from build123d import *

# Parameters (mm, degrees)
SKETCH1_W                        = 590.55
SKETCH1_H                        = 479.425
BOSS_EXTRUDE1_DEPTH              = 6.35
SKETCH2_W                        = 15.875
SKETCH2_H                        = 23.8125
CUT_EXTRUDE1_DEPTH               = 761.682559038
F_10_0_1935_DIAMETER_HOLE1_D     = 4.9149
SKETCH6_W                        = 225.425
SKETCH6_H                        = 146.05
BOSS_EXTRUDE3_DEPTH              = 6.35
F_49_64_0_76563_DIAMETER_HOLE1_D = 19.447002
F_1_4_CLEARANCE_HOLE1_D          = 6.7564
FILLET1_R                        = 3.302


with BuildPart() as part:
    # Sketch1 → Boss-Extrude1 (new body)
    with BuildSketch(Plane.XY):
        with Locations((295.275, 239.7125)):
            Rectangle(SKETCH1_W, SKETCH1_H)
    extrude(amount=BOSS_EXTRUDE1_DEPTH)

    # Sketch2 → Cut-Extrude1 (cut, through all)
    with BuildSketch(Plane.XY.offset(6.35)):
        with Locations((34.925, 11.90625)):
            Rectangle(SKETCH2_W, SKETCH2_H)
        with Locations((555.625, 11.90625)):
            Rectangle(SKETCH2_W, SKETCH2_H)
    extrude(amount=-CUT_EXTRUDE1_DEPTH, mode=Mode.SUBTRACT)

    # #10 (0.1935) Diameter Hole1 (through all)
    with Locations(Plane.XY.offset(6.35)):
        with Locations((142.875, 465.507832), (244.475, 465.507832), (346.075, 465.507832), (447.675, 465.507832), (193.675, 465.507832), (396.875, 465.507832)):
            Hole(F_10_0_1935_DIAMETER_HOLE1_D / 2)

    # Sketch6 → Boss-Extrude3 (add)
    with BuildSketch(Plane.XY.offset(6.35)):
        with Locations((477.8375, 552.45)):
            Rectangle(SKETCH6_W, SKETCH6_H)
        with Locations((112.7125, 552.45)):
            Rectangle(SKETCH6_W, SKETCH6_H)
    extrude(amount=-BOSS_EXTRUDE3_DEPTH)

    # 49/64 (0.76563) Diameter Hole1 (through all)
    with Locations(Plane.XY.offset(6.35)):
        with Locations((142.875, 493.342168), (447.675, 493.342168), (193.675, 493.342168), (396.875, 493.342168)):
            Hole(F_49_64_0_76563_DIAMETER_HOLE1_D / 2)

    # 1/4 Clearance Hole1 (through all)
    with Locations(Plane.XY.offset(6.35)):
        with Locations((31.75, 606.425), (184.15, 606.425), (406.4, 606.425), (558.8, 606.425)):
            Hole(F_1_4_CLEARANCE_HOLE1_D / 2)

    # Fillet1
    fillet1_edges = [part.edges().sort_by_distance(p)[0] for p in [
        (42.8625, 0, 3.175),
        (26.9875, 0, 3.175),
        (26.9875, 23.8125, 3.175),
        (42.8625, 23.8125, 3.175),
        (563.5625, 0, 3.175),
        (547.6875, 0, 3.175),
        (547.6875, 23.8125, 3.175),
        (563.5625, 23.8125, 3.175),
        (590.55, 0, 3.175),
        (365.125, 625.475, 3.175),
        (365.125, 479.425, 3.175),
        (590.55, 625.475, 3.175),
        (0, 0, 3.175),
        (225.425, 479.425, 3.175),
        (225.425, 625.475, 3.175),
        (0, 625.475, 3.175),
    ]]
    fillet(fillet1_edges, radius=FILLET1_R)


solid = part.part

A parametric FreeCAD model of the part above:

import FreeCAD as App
import Part
import Sketcher
Q = App.Units.Quantity


def edges_at(feature, points):
    """Names of the edges that pass closest to the given points."""
    edges = feature.Shape.Edges
    near = lambda p: min(range(len(edges)), key=lambda i: edges[i].distToShape(Part.Vertex(*p))[0])
    return sorted({f"Edge{near(p) + 1}" for p in points})


def add_polygon(sketch, points):
    """Adds a closed chain of lines whose ends are joined by coincident constraints."""
    first, n = sketch.GeometryCount, len(points)
    for a, b in zip(points, points[1:] + points[:1]):
        sketch.addGeometry(Part.LineSegment(App.Vector(*a, 0), App.Vector(*b, 0)), False)
    for i in range(n):
        sketch.addConstraint(Sketcher.Constraint("Coincident", first + i, 2, first + (i + 1) % n, 1))

doc = App.newDocument("Part")
body = doc.addObject("PartDesign::Body", "Body")

# Sketch on XY plane
sketch1 = body.newObject("Sketcher::SketchObject", "Sketch")
sketch1.AttachmentSupport = (doc.getObject("XY_Plane"), [""])
sketch1.MapMode = "FlatFace"
add_polygon(sketch1, [(0, 479.425), (0, 0), (590.55, 0), (590.55, 479.425)])  # lines 0-3
sketch1.addConstraint(Sketcher.Constraint("Vertical", 0))
sketch1.addConstraint(Sketcher.Constraint("Horizontal", 1))
sketch1.addConstraint(Sketcher.Constraint("Vertical", 2))
sketch1.addConstraint(Sketcher.Constraint("Horizontal", 3))
sketch1.addConstraint(Sketcher.Constraint("Coincident", 0, 2, -1, 1))
sketch1.addConstraint(Sketcher.Constraint("DistanceX", 1, 1, 1, 2, Q("23.25 in")))
sketch1.addConstraint(Sketcher.Constraint("DistanceY", 0, 2, 0, 1, Q("18.875 in")))
pad1 = body.newObject("PartDesign::Pad", "Pad")
pad1.Profile = sketch1
pad1.Length = Q("0.25 in")

# Sketch on XY plane
sketch2 = body.newObject("Sketcher::SketchObject", "Sketch001")
sketch2.AttachmentSupport = (doc.getObject("XY_Plane"), [""])
sketch2.MapMode = "FlatFace"
sketch2.AttachmentOffset = App.Placement(App.Vector(0, 0, 0.25 * 25.4), App.Rotation())
add_polygon(sketch2, [(26.9875, 23.8125), (26.9875, 0), (42.8625, 0), (42.8625, 23.8125)])  # lines 0-3
add_polygon(sketch2, [(547.6875, 23.8125), (547.6875, 0), (563.5625, 0), (563.5625, 23.8125)])  # lines 4-7
sketch2.addConstraint(Sketcher.Constraint("Vertical", 0))
sketch2.addConstraint(Sketcher.Constraint("Horizontal", 1))
sketch2.addConstraint(Sketcher.Constraint("Vertical", 2))
sketch2.addConstraint(Sketcher.Constraint("Horizontal", 3))
sketch2.addConstraint(Sketcher.Constraint("Vertical", 4))
sketch2.addConstraint(Sketcher.Constraint("Horizontal", 5))
sketch2.addConstraint(Sketcher.Constraint("Vertical", 6))
sketch2.addConstraint(Sketcher.Constraint("Horizontal", 7))
sketch2.addConstraint(Sketcher.Constraint("PointOnObject", 0, 2, -1))
sketch2.addConstraint(Sketcher.Constraint("PointOnObject", 4, 2, -1))
sketch2.addConstraint(Sketcher.Constraint("Horizontal", 3, 2, 6, 2))
sketch2.addConstraint(Sketcher.Constraint("Equal", 3, 5))
sketch2.addConstraint(Sketcher.Constraint("DistanceX", 0, 2, 4, 2, Q("20.5 in")))
sketch2.addConstraint(Sketcher.Constraint("DistanceX", 1, 1, 1, 2, Q("0.625 in")))
sketch2.addConstraint(Sketcher.Constraint("DistanceY", 0, 2, 0, 1, Q("0.9375 in")))
sketch2.addConstraint(Sketcher.Constraint("DistanceX", -1, 1, 0, 2, Q("1.0625 in")))
pocket1 = body.newObject("PartDesign::Pocket", "Pocket")
pocket1.Profile = sketch2
pocket1.Type = "ThroughAll"

# Sketch on XY plane
sketch3 = body.newObject("Sketcher::SketchObject", "Sketch002")
sketch3.AttachmentSupport = (doc.getObject("XY_Plane"), [""])
sketch3.MapMode = "FlatFace"
sketch3.AttachmentOffset = App.Placement(App.Vector(0, 0, 0.25 * 25.4), App.Rotation())
sketch3.addGeometry(Part.Circle(App.Vector(142.875, 465.507832, 0), App.Vector(0, 0, 1), 2.45745), False)
sketch3.addGeometry(Part.Circle(App.Vector(244.475, 465.507832, 0), App.Vector(0, 0, 1), 2.45745), False)
sketch3.addGeometry(Part.Circle(App.Vector(346.075, 465.507832, 0), App.Vector(0, 0, 1), 2.45745), False)
sketch3.addGeometry(Part.Circle(App.Vector(447.675, 465.507832, 0), App.Vector(0, 0, 1), 2.45745), False)
sketch3.addGeometry(Part.Circle(App.Vector(193.675, 465.507832, 0), App.Vector(0, 0, 1), 2.45745), False)
sketch3.addGeometry(Part.Circle(App.Vector(396.875, 465.507832, 0), App.Vector(0, 0, 1), 2.45745), False)
sketch3.addConstraint(Sketcher.Constraint("Equal", 0, 1))
sketch3.addConstraint(Sketcher.Constraint("Equal", 1, 2))
sketch3.addConstraint(Sketcher.Constraint("Equal", 2, 3))
sketch3.addConstraint(Sketcher.Constraint("Equal", 3, 4))
sketch3.addConstraint(Sketcher.Constraint("Equal", 4, 5))
sketch3.addConstraint(Sketcher.Constraint("Horizontal", 0, 3, 1, 3))
sketch3.addConstraint(Sketcher.Constraint("Horizontal", 1, 3, 2, 3))
sketch3.addConstraint(Sketcher.Constraint("Horizontal", 2, 3, 3, 3))
sketch3.addConstraint(Sketcher.Constraint("Horizontal", 3, 3, 4, 3))
sketch3.addConstraint(Sketcher.Constraint("Horizontal", 4, 3, 5, 3))
sketch3.addConstraint(Sketcher.Constraint("DistanceX", 0, 3, 1, 3, Q("4 in")))
sketch3.addConstraint(Sketcher.Constraint("DistanceX", 1, 3, 2, 3, Q("4 in")))
sketch3.addConstraint(Sketcher.Constraint("DistanceX", 2, 3, 3, 3, Q("4 in")))
sketch3.addConstraint(Sketcher.Constraint("DistanceX", 4, 3, 1, 3, Q("2 in")))
sketch3.addConstraint(Sketcher.Constraint("DistanceX", 2, 3, 5, 3, Q("2 in")))
sketch3.addConstraint(Sketcher.Constraint("Diameter", 0, Q("0.1935 in")))
sketch3.addConstraint(Sketcher.Constraint("DistanceX", -1, 1, 0, 3, Q("5.625 in")))
sketch3.addConstraint(Sketcher.Constraint("DistanceY", -1, 1, 0, 3, Q("465.507832 mm")))
doc.recompute()
hole = body.newObject("PartDesign::Hole", "Hole")
hole.Profile = sketch3
hole.ThreadType = "None"
hole.Diameter = Q("0.1935 in")
hole.DepthType = "ThroughAll"

# Sketch on XY plane
sketch4 = body.newObject("Sketcher::SketchObject", "Sketch003")
sketch4.AttachmentSupport = (doc.getObject("XY_Plane"), [""])
sketch4.MapMode = "FlatFace"
sketch4.AttachmentOffset = App.Placement(App.Vector(0, 0, 0.25 * 25.4), App.Rotation())
add_polygon(sketch4, [(365.125, 625.475), (365.125, 479.425), (590.55, 479.425), (590.55, 625.475)])  # lines 0-3
add_polygon(sketch4, [(0, 625.475), (0, 479.425), (225.425, 479.425), (225.425, 625.475)])  # lines 4-7
sketch4.addConstraint(Sketcher.Constraint("Vertical", 0))
sketch4.addConstraint(Sketcher.Constraint("Horizontal", 1))
sketch4.addConstraint(Sketcher.Constraint("Vertical", 2))
sketch4.addConstraint(Sketcher.Constraint("Horizontal", 3))
sketch4.addConstraint(Sketcher.Constraint("Vertical", 4))
sketch4.addConstraint(Sketcher.Constraint("Horizontal", 5))
sketch4.addConstraint(Sketcher.Constraint("Vertical", 6))
sketch4.addConstraint(Sketcher.Constraint("Horizontal", 7))
sketch4.addConstraint(Sketcher.Constraint("PointOnObject", 4, 2, -2))
sketch4.addConstraint(Sketcher.Constraint("Horizontal", 1, 2, 4, 2))
sketch4.addConstraint(Sketcher.Constraint("Horizontal", 3, 2, 6, 2))
sketch4.addConstraint(Sketcher.Constraint("Equal", 3, 5))
sketch4.addConstraint(Sketcher.Constraint("DistanceY", 0, 2, 0, 1, Q("5.75 in")))
sketch4.addConstraint(Sketcher.Constraint("DistanceX", 5, 2, 0, 2, Q("5.5 in")))
sketch4.addConstraint(Sketcher.Constraint("DistanceX", 1, 1, 1, 2, Q("8.875 in")))
sketch4.addConstraint(Sketcher.Constraint("DistanceY", -1, 1, 0, 2, Q("18.875 in")))
pad2 = body.newObject("PartDesign::Pad", "Pad001")
pad2.Profile = sketch4
pad2.Length = Q("0.25 in")
pad2.Reversed = True

# Sketch on XY plane
sketch5 = body.newObject("Sketcher::SketchObject", "Sketch004")
sketch5.AttachmentSupport = (doc.getObject("XY_Plane"), [""])
sketch5.MapMode = "FlatFace"
sketch5.AttachmentOffset = App.Placement(App.Vector(0, 0, 0.25 * 25.4), App.Rotation())
sketch5.addGeometry(Part.Circle(App.Vector(142.875, 493.342168, 0), App.Vector(0, 0, 1), 9.723501), False)
sketch5.addGeometry(Part.Circle(App.Vector(447.675, 493.342168, 0), App.Vector(0, 0, 1), 9.723501), False)
sketch5.addGeometry(Part.Circle(App.Vector(193.675, 493.342168, 0), App.Vector(0, 0, 1), 9.723501), False)
sketch5.addGeometry(Part.Circle(App.Vector(396.875, 493.342168, 0), App.Vector(0, 0, 1), 9.723501), False)
sketch5.addConstraint(Sketcher.Constraint("Equal", 0, 1))
sketch5.addConstraint(Sketcher.Constraint("Equal", 1, 2))
sketch5.addConstraint(Sketcher.Constraint("Equal", 2, 3))
sketch5.addConstraint(Sketcher.Constraint("Horizontal", 0, 3, 1, 3))
sketch5.addConstraint(Sketcher.Constraint("Horizontal", 1, 3, 2, 3))
sketch5.addConstraint(Sketcher.Constraint("Horizontal", 2, 3, 3, 3))
sketch5.addConstraint(Sketcher.Constraint("DistanceX", 0, 3, 1, 3, Q("12 in")))
sketch5.addConstraint(Sketcher.Constraint("DistanceX", 0, 3, 2, 3, Q("2 in")))
sketch5.addConstraint(Sketcher.Constraint("DistanceX", 3, 3, 1, 3, Q("2 in")))
sketch5.addConstraint(Sketcher.Constraint("DistanceX", -1, 1, 0, 3, Q("5.625 in")))
sketch5.addConstraint(Sketcher.Constraint("Diameter", 0, Q("19.447002 mm")))
sketch5.addConstraint(Sketcher.Constraint("DistanceY", -1, 1, 0, 3, Q("493.342168 mm")))
doc.recompute()
hole2 = body.newObject("PartDesign::Hole", "Hole001")
hole2.Profile = sketch5
hole2.ThreadType = "None"
hole2.Diameter = 19.447002
hole2.DepthType = "ThroughAll"

# Sketch on XY plane
sketch6 = body.newObject("Sketcher::SketchObject", "Sketch005")
sketch6.AttachmentSupport = (doc.getObject("XY_Plane"), [""])
sketch6.MapMode = "FlatFace"
sketch6.AttachmentOffset = App.Placement(App.Vector(0, 0, 0.25 * 25.4), App.Rotation())
sketch6.addGeometry(Part.Circle(App.Vector(31.75, 606.425, 0), App.Vector(0, 0, 1), 3.3782), False)
sketch6.addGeometry(Part.Circle(App.Vector(184.15, 606.425, 0), App.Vector(0, 0, 1), 3.3782), False)
sketch6.addGeometry(Part.Circle(App.Vector(406.4, 606.425, 0), App.Vector(0, 0, 1), 3.3782), False)
sketch6.addGeometry(Part.Circle(App.Vector(558.8, 606.425, 0), App.Vector(0, 0, 1), 3.3782), False)
sketch6.addConstraint(Sketcher.Constraint("Equal", 0, 1))
sketch6.addConstraint(Sketcher.Constraint("Equal", 1, 2))
sketch6.addConstraint(Sketcher.Constraint("Equal", 2, 3))
sketch6.addConstraint(Sketcher.Constraint("Horizontal", 0, 3, 1, 3))
sketch6.addConstraint(Sketcher.Constraint("Horizontal", 1, 3, 2, 3))
sketch6.addConstraint(Sketcher.Constraint("Horizontal", 2, 3, 3, 3))
sketch6.addConstraint(Sketcher.Constraint("Diameter", 0, Q("0.266 in")))
sketch6.addConstraint(Sketcher.Constraint("DistanceX", -1, 1, 2, 3, Q("16 in")))
sketch6.addConstraint(Sketcher.Constraint("DistanceX", -1, 1, 3, 3, Q("22 in")))
sketch6.addConstraint(Sketcher.Constraint("DistanceX", 0, 3, 1, 3, Q("6 in")))
sketch6.addConstraint(Sketcher.Constraint("DistanceX", -1, 1, 0, 3, Q("1.25 in")))
sketch6.addConstraint(Sketcher.Constraint("DistanceY", -1, 1, 0, 3, Q("23.875 in")))
doc.recompute()
hole3 = body.newObject("PartDesign::Hole", "Hole002")
hole3.Profile = sketch6
hole3.ThreadType = "None"
hole3.Diameter = Q("0.266 in")
hole3.DepthType = "ThroughAll"
doc.recompute()

fillet = body.newObject("PartDesign::Fillet", "Fillet")
fillet.Base = (hole3, edges_at(hole3, [
    (42.862, 0, 3.175),
    (26.988, 0, 3.175),
    (26.988, 23.812, 3.175),
    (42.862, 23.812, 3.175),
    (563.562, 0, 3.175),
    (547.688, 0, 3.175),
    (547.688, 23.812, 3.175),
    (563.562, 23.812, 3.175),
    (590.55, 0, 3.175),
    (365.125, 625.475, 3.175),
    (365.125, 479.425, 3.175),
    (590.55, 625.475, 3.175),
    (0, 0, 3.175),
    (225.425, 479.425, 3.175),
    (225.425, 625.475, 3.175),
    (0, 625.475, 3.175),
]))
fillet.Radius = Q("0.13 in")

doc.recompute()
